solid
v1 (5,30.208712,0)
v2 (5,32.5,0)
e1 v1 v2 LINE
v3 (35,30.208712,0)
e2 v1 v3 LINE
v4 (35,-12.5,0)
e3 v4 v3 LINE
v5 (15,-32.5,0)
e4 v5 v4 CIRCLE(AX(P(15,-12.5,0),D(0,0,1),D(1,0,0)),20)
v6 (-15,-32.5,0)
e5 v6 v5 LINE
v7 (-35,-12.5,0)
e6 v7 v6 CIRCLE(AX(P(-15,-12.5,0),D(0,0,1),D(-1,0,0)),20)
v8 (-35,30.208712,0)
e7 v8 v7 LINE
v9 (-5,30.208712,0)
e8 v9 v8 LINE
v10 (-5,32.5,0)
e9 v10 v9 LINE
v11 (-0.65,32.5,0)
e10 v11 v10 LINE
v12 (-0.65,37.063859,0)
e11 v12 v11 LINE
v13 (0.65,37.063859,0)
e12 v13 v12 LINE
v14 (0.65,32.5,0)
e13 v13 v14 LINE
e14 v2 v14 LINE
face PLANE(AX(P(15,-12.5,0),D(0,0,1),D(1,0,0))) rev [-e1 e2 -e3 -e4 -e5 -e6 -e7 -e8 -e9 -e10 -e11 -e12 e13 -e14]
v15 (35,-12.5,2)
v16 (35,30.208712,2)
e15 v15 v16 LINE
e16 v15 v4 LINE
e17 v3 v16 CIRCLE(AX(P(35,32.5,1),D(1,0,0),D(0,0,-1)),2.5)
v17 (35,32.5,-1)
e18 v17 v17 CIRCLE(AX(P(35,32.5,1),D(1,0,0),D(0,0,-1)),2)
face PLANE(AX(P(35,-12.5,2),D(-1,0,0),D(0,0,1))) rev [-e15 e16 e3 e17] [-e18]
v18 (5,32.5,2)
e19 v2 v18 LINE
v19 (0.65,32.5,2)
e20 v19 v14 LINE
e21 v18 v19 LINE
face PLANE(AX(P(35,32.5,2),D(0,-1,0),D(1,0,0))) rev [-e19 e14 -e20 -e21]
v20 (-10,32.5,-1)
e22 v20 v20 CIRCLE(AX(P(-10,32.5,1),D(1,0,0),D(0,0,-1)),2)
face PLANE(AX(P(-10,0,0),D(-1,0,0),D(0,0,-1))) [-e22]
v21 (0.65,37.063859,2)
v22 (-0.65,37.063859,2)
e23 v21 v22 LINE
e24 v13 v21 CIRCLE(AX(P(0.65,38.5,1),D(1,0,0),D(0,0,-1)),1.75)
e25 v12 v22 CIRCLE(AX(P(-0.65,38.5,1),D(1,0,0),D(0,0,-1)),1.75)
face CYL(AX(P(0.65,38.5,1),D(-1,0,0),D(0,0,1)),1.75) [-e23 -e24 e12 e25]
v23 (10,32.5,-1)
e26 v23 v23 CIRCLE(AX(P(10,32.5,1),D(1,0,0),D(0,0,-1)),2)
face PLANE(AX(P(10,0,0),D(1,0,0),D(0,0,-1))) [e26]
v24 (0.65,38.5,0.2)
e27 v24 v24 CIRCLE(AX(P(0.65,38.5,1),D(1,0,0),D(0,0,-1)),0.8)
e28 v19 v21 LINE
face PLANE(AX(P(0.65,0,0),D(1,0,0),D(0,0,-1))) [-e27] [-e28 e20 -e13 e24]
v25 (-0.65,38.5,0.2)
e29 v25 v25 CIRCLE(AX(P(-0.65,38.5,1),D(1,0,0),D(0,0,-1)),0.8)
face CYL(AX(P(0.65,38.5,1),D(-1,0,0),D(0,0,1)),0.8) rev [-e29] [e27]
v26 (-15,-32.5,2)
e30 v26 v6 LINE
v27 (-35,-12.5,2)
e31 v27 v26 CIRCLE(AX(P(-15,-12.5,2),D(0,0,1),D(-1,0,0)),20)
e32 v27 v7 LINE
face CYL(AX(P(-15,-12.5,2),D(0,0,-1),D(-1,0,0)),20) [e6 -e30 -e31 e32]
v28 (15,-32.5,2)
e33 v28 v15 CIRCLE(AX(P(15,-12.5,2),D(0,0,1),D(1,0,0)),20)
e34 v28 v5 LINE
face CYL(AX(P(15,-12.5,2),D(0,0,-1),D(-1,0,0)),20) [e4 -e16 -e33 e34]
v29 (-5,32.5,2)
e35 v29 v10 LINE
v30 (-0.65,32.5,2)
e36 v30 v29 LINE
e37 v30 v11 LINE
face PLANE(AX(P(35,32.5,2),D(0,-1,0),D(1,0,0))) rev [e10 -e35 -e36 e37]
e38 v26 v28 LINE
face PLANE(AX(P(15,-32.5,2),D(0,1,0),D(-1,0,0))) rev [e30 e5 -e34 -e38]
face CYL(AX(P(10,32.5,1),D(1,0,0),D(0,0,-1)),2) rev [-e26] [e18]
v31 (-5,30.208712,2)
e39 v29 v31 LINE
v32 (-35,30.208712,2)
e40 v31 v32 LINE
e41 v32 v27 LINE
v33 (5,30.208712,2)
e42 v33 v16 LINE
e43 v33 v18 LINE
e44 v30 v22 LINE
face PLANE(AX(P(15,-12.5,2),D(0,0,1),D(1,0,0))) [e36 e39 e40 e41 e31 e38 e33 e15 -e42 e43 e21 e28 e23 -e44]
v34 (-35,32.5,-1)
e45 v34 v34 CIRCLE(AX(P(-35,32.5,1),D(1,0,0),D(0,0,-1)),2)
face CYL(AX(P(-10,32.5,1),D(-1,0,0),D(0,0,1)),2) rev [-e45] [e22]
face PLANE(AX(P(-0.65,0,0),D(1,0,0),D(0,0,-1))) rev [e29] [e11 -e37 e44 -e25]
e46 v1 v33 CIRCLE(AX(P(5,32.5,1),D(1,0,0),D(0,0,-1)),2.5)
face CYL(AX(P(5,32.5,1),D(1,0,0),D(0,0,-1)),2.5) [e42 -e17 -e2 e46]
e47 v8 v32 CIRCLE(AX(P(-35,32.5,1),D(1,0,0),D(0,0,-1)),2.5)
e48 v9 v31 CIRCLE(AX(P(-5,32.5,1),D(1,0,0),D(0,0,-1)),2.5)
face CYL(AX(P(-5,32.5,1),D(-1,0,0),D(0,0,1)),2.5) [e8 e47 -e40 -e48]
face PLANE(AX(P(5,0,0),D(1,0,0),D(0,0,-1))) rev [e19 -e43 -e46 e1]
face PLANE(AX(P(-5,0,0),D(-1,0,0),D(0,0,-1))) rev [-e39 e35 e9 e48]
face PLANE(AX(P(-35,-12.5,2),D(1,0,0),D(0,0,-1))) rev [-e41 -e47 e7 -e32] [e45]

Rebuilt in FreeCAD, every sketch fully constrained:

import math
import FreeCAD as App
import Part
import Sketcher

V = App.Vector
Q = App.Units.Quantity

doc = App.newDocument("Part")
params = doc.addObject("Spreadsheet::Sheet", "Params")
for row, (alias, value) in enumerate([
    ("sketch1_radius", "20 mm"),
    ("sketch1_width", "30 mm"),
    ("sketch1_height", "45 mm"),
    ("pad1_length", "2 mm"),
    ("sketch2_radius", "2.5 mm"),
    ("pad2_length", "30 mm"),
    ("sketch3_radius", "2 mm"),
    ("pocket1_length", "25 mm"),
    ("sketch4_diameter", "1.6 mm"),
    ("sketch4_height", "2 mm"),
    ("sketch4_radius", "1.75 mm"),
    ("pad3_length", "1.3 mm"),
], start=1):
    params.set(f"A{row}", alias)
    params.set(f"B{row}", "=" + value)
    params.setAlias(f"B{row}", alias)

body = doc.addObject("PartDesign::Body", "Body")

sketch1 = doc.addObject("Sketcher::SketchObject", "Sketch")
body.addObject(sketch1)
sketch1.AttachmentSupport = (doc.XY_Plane, [""])
sketch1.MapMode = "FlatFace"
sketch1.addGeometry([
    Part.LineSegment(V(-15, -32, 0), V(15, -32, 0)),
    Part.ArcOfCircle(Part.Circle(V(15, -13, 0), V(0, 0, 1), 20), math.radians(-90), math.radians(0)),
    Part.LineSegment(V(35, -12, 0), V(35, 32, 0)),
    Part.LineSegment(V(35, 32, 0), V(-35, 32, 0)),
    Part.LineSegment(V(-35, 32, 0), V(-35, -12, 0)),
    Part.ArcOfCircle(Part.Circle(V(-15, -13, 0), V(0, 0, 1), 20), math.radians(180), math.radians(270)),
], False)
sketch1.addConstraint([
    Sketcher.Constraint("Tangent", 0, 2, 1, 1),
    Sketcher.Constraint("Tangent", 1, 2, 2, 1),
    Sketcher.Constraint("Coincident", 2, 2, 3, 1),
    Sketcher.Constraint("Coincident", 3, 2, 4, 1),
    Sketcher.Constraint("Tangent", 4, 2, 5, 1),
    Sketcher.Constraint("Tangent", 5, 2, 0, 1),
    Sketcher.Constraint("Horizontal", 0),
    Sketcher.Constraint("Vertical", 2),
    Sketcher.Constraint("Horizontal", 3),
    Sketcher.Constraint("Vertical", 4),
    Sketcher.Constraint("Equal", 1, 5),
    Sketcher.Constraint("Radius", 1, Q("20 mm")),
    Sketcher.Constraint("DistanceX", 0, 1, 0, 2, Q("30 mm")),
    Sketcher.Constraint("DistanceY", 2, 1, 2, 2, Q("45 mm")),
    Sketcher.Constraint("DistanceX", -1, 1, 1, 3, Q("15 mm")),
    Sketcher.Constraint("DistanceY", 1, 3, -1, 1, Q("12.5 mm")),
])
sketch1.setExpression("Constraints[11]", "Params.sketch1_radius")
sketch1.setExpression("Constraints[12]", "Params.sketch1_width")
sketch1.setExpression("Constraints[13]", "Params.sketch1_height")
pad1 = doc.addObject("PartDesign::Pad", "Pad")
body.addObject(pad1)
pad1.Profile = sketch1
pad1.setExpression("Length", "Params.pad1_length")

sketch2 = doc.addObject("Sketcher::SketchObject", "Sketch001")
body.addObject(sketch2)
sketch2.AttachmentSupport = (doc.YZ_Plane, [""])
sketch2.MapMode = "FlatFace"
sketch2.AttachmentOffset = App.Placement(V(0, 0, 35), App.Rotation())
sketch2.addGeometry([
    Part.ArcOfCircle(Part.Circle(V(32.5, 1, 0), V(0, 0, 1), 2.5), math.radians(0), math.radians(156)),
    Part.ArcOfCircle(Part.Circle(V(32.5, 1, 0), V(0, 0, 1), 2.5), math.radians(156), math.radians(204)),
    Part.ArcOfCircle(Part.Circle(V(32.5, 1, 0), V(0, 0, 1), 2.5), math.radians(-156), math.radians(-90)),
    Part.ArcOfCircle(Part.Circle(V(32.5, 1, 0), V(0, 0, 1), 2.5), math.radians(-90), math.radians(0)),
], False)
sketch2.addConstraint([
    Sketcher.Constraint("Tangent", 0, 2, 1, 1),
    Sketcher.Constraint("Tangent", 1, 2, 2, 1),
    Sketcher.Constraint("Tangent", 2, 2, 3, 1),
    Sketcher.Constraint("Tangent", 3, 2, 0, 1),
    Sketcher.Constraint("Equal", 0, 1),
    Sketcher.Constraint("PointOnObject", 1, 2, -1),
    Sketcher.Constraint("Horizontal", 2, 3, 3, 2),
    Sketcher.Constraint("Vertical", 0, 2, 1, 2),
    Sketcher.Constraint("Vertical", 3, 3, 2, 2),
    Sketcher.Constraint("Radius", 0, Q("2.5 mm")),
    Sketcher.Constraint("DistanceY", -1, 1, 0, 3, Q("1 mm")),
    Sketcher.Constraint("DistanceX", -1, 1, 3, 2, Q("35 mm")),
])
sketch2.setExpression("Constraints[9]", "Params.sketch2_radius")
pad2 = doc.addObject("PartDesign::Pad", "Pad001")
body.addObject(pad2)
pad2.Profile = sketch2
pad2.setExpression("Length", "Params.pad2_length")
pad2.Reversed = True

sketch3 = doc.addObject("Sketcher::SketchObject", "Sketch002")
body.addObject(sketch3)
sketch3.AttachmentSupport = (doc.YZ_Plane, [""])
sketch3.MapMode = "FlatFace"
sketch3.AttachmentOffset = App.Placement(V(0, 0, 35), App.Rotation())
sketch3.addGeometry([
    Part.ArcOfCircle(Part.Circle(V(32.5, 1, 0), V(0, 0, 1), 2), math.radians(0), math.radians(150)),
    Part.ArcOfCircle(Part.Circle(V(32.5, 1, 0), V(0, 0, 1), 2), math.radians(150), math.radians(210)),
    Part.ArcOfCircle(Part.Circle(V(32.5, 1, 0), V(0, 0, 1), 2), math.radians(-150), math.radians(-90)),
    Part.ArcOfCircle(Part.Circle(V(32.5, 1, 0), V(0, 0, 1), 2), math.radians(-90), math.radians(0)),
], False)
sketch3.addConstraint([
    Sketcher.Constraint("Tangent", 0, 2, 1, 1),
    Sketcher.Constraint("Tangent", 1, 2, 2, 1),
    Sketcher.Constraint("Tangent", 2, 2, 3, 1),
    Sketcher.Constraint("Tangent", 3, 2, 0, 1),
    Sketcher.Constraint("Equal", 0, 1),
    Sketcher.Constraint("PointOnObject", 1, 2, -1),
    Sketcher.Constraint("Horizontal", 2, 3, 3, 2),
    Sketcher.Constraint("Vertical", 0, 2, 1, 2),
    Sketcher.Constraint("Vertical", 3, 3, 2, 2),
    Sketcher.Constraint("Radius", 0, Q("2 mm")),
    Sketcher.Constraint("DistanceY", -1, 1, 0, 3, Q("1 mm")),
    Sketcher.Constraint("DistanceX", -1, 1, 0, 3, Q("32.5 mm")),
])
sketch3.setExpression("Constraints[9]", "Params.sketch3_radius")
pocket1 = doc.addObject("PartDesign::Pocket", "Pocket")
body.addObject(pocket1)
pocket1.Profile = sketch3
pocket1.setExpression("Length", "Params.pocket1_length")
doc.recompute()

mirrored = doc.addObject("PartDesign::Mirrored", "Mirrored")
body.addObject(mirrored)
mirrored.Originals = [pad2, pocket1]
mirrored.MirrorPlane = (doc.YZ_Plane, [""])
body.Tip = mirrored

sketch4 = doc.addObject("Sketcher::SketchObject", "Sketch003")
body.addObject(sketch4)
sketch4.AttachmentSupport = (doc.YZ_Plane, [""])
sketch4.MapMode = "FlatFace"
sketch4.addGeometry([
    Part.LineSegment(V(37.1, 2, 0), V(32.5, 2, 0)),
    Part.LineSegment(V(32.5, 2, 0), V(32.5, 0, 0)),
    Part.LineSegment(V(32.5, 0, 0), V(37.1, 0, 0)),
    Part.ArcOfCircle(Part.Circle(V(38.5, 1, 0), V(0, 0, 1), 1.8), math.radians(-145), math.radians(145)),
    Part.Circle(V(38.5, 1, 0), V(0, 0, 1), 0.8),
], False)
sketch4.addConstraint([
    Sketcher.Constraint("Coincident", 0, 2, 1, 1),
    Sketcher.Constraint("Coincident", 1, 2, 2, 1),
    Sketcher.Constraint("Coincident", 2, 2, 3, 1),
    Sketcher.Constraint("Coincident", 3, 2, 0, 1),
    Sketcher.Constraint("Horizontal", 0),
    Sketcher.Constraint("Vertical", 1),
    Sketcher.Constraint("Horizontal", 2),
    Sketcher.Constraint("Coincident", 4, 3, 3, 3),
    Sketcher.Constraint("PointOnObject", 1, 2, -1),
    Sketcher.Constraint("Vertical", 2, 2, 3, 2),
    Sketcher.Constraint("Diameter", 4, Q("1.6 mm")),
    Sketcher.Constraint("DistanceY", 1, 2, 1, 1, Q("2 mm")),
    Sketcher.Constraint("Radius", 3, Q("1.75 mm")),
    Sketcher.Constraint("DistanceX", 0, 2, 3, 3, Q("6 mm")),
    Sketcher.Constraint("DistanceX", -1, 1, 3, 3, Q("38.5 mm")),
])
sketch4.setExpression("Constraints[10]", "Params.sketch4_diameter")
sketch4.setExpression("Constraints[11]", "Params.sketch4_height")
sketch4.setExpression("Constraints[12]", "Params.sketch4_radius")
pad3 = doc.addObject("PartDesign::Pad", "Pad002")
body.addObject(pad3)
pad3.Profile = sketch4
pad3.setExpression("Length", "Params.pad3_length")
pad3.Midplane = True

doc.recompute()
